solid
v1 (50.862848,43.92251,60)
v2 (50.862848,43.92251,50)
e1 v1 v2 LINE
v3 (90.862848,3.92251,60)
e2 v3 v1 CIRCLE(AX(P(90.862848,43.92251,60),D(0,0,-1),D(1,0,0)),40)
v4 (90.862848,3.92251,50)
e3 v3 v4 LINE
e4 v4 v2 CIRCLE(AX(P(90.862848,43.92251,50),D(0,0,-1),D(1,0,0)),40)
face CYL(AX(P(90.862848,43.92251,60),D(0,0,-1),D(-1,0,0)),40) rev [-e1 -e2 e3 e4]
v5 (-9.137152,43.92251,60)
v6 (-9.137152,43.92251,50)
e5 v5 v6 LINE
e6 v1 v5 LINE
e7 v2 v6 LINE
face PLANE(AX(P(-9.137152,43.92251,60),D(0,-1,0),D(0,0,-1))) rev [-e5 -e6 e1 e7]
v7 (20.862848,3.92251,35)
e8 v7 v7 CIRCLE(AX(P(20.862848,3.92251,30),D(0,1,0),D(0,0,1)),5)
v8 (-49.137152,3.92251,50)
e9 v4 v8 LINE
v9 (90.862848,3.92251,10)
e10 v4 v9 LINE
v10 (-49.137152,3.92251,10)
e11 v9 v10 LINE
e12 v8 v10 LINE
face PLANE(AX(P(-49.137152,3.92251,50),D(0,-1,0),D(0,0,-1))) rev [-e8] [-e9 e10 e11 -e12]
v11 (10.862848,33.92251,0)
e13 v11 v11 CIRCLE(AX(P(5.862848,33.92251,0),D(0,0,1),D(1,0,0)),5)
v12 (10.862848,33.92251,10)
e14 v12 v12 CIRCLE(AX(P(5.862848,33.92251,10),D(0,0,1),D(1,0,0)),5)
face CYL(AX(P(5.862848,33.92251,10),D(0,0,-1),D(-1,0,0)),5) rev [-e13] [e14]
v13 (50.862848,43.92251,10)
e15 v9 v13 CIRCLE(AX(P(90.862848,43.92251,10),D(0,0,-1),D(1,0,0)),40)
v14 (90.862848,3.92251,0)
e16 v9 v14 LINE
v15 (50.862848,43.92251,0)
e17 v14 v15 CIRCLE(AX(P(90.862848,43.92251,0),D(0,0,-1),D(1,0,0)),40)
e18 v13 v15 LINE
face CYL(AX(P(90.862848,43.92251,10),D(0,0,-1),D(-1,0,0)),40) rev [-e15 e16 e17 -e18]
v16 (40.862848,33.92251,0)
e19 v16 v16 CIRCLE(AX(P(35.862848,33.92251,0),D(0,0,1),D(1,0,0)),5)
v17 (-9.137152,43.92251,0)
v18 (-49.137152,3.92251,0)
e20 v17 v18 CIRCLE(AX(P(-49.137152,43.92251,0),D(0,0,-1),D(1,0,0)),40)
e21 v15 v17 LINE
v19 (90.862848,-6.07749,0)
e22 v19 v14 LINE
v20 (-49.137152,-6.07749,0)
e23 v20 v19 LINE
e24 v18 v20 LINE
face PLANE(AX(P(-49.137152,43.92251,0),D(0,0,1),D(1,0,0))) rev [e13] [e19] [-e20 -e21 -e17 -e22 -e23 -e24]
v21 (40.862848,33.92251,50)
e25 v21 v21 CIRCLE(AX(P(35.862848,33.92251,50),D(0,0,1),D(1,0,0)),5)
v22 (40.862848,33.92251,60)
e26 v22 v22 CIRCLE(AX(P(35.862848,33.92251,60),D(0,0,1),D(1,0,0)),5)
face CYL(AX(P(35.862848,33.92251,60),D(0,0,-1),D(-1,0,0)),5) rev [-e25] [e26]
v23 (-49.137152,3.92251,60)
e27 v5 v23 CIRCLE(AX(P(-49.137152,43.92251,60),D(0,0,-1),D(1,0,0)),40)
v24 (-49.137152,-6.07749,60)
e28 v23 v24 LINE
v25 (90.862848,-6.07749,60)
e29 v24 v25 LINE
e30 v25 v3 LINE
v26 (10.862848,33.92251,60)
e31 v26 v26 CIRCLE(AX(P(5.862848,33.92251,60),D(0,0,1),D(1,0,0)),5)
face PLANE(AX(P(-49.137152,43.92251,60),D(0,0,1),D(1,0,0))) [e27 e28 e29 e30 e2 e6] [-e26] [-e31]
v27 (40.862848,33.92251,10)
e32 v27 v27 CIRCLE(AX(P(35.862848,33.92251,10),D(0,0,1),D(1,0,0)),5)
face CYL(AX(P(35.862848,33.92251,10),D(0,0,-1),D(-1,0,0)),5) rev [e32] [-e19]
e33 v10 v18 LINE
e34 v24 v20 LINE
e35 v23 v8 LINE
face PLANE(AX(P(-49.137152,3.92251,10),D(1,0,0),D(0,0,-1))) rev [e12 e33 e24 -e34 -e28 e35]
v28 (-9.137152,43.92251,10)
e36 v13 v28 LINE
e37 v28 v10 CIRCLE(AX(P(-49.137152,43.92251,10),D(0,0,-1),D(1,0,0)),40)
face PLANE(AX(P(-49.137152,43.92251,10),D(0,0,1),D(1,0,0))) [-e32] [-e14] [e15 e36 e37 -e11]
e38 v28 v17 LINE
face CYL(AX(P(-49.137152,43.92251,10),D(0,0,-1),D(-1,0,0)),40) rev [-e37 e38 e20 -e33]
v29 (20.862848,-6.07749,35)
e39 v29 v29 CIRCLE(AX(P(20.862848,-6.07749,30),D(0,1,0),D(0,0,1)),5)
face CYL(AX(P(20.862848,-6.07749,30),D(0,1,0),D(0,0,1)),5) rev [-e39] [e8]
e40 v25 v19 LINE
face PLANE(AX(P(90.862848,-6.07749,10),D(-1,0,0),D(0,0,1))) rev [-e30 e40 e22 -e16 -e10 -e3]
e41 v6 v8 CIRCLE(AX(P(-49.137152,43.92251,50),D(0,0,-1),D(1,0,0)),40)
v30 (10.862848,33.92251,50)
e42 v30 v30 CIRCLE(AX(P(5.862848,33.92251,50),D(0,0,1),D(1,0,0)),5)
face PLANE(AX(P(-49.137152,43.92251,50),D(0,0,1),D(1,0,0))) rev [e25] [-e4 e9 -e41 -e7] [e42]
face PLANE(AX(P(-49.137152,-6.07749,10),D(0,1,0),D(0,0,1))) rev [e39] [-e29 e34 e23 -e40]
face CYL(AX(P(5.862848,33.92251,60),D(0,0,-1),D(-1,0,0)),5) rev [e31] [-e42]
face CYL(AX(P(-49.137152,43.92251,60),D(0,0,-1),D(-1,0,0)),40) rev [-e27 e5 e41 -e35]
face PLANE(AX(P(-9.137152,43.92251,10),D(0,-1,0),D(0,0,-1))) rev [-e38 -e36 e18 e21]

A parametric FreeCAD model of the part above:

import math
import FreeCAD as App
import Part
import Sketcher


def add_polygon(sketch, points):
    """Adds a closed chain of lines whose ends are joined by coincident constraints."""
    first, n = sketch.GeometryCount, len(points)
    for a, b in zip(points, points[1:] + points[:1]):
        sketch.addGeometry(Part.LineSegment(App.Vector(*a, 0), App.Vector(*b, 0)), False)
    for i in range(n):
        sketch.addConstraint(Sketcher.Constraint("Coincident", first + i, 2, first + (i + 1) % n, 1))

doc = App.newDocument("Part")
params = doc.addObject("Spreadsheet::Sheet", "Params")
for row, (alias, value) in enumerate([
    ("sketch1_diameter", "10 mm"),
    ("sketch1_radius", "40 mm"),
    ("sketch1_width", "140 mm"),
    ("sketch1_height", "10 mm"),
    ("pad1_length", "10 mm"),
    ("sketch2_width", "140 mm"),
    ("sketch2_height", "10 mm"),
    ("pad2_length", "40 mm"),
    ("sketch3_diameter", "10 mm"),
    ("sketch3_radius", "40 mm"),
    ("sketch3_width", "140 mm"),
    ("sketch3_height", "10 mm"),
    ("pad3_length", "10 mm"),
    ("sketch4_diameter", "10 mm"),
    ("pocket1_length", "10 mm"),
], start=1):
    params.set(f"A{row}", alias)
    params.set(f"B{row}", "=" + value)
    params.setAlias(f"B{row}", alias)

body = doc.addObject("PartDesign::Body", "Body")

sketch1 = body.newObject("Sketcher::SketchObject", "Sketch")
sketch1.AttachmentSupport = (doc.getObject("XY_Plane"), [""])
sketch1.MapMode = "FlatFace"
sketch1.addGeometry([
    Part.LineSegment(App.Vector(-49, 4, 0), App.Vector(-49, -6, 0)),
    Part.LineSegment(App.Vector(-49, -6, 0), App.Vector(91, -6, 0)),
    Part.LineSegment(App.Vector(91, -6, 0), App.Vector(91, 4, 0)),
    Part.ArcOfCircle(Part.Circle(App.Vector(91, 44, 0), App.Vector(0, 0, 1), 40), math.radians(180), math.radians(270)),
    Part.LineSegment(App.Vector(51, 44, 0), App.Vector(-9, 44, 0)),
    Part.ArcOfCircle(Part.Circle(App.Vector(-49, 44, 0), App.Vector(0, 0, 1), 40), math.radians(-90), math.radians(0)),
    Part.Circle(App.Vector(6, 34, 0), App.Vector(0, 0, 1), 5),
    Part.Circle(App.Vector(36, 34, 0), App.Vector(0, 0, 1), 5),
], False)
sketch1.addConstraint([
    Sketcher.Constraint("Coincident", 0, 2, 1, 1),
    Sketcher.Constraint("Coincident", 1, 2, 2, 1),
    Sketcher.Constraint("Coincident", 2, 2, 3, 2),
    Sketcher.Constraint("Coincident", 3, 1, 4, 1),
    Sketcher.Constraint("Coincident", 4, 2, 5, 2),
    Sketcher.Constraint("Coincident", 5, 1, 0, 1),
    Sketcher.Constraint("Vertical", 0),
    Sketcher.Constraint("Horizontal", 1),
    Sketcher.Constraint("Vertical", 2),
    Sketcher.Constraint("Horizontal", 4),
    Sketcher.Constraint("Equal", 3, 5),
    Sketcher.Constraint("Equal", 6, 7),
    Sketcher.Constraint("Horizontal", 3, 3, 5, 3),
    Sketcher.Constraint("Horizontal", 6, 3, 7, 3),
    Sketcher.Constraint("Horizontal", 5, 3, 3, 1),
    Sketcher.Constraint("Vertical", 5, 3, 0, 2),
    Sketcher.Constraint("Vertical", 3, 3, 1, 2),
    Sketcher.Constraint("Diameter", 6, 10.0),
    Sketcher.Constraint("Radius", 3, 40.0),
    Sketcher.Constraint("DistanceX", 1, 1, 1, 2, 140.0),
    Sketcher.Constraint("DistanceY", 0, 2, 0, 1, 10.0),
    Sketcher.Constraint("DistanceX", 5, 3, 6, 3, 55.0),
    Sketcher.Constraint("DistanceY", 6, 3, 5, 3, 10.0),
    Sketcher.Constraint("DistanceX", 6, 3, 7, 3, 30.0),
    Sketcher.Constraint("DistanceY", -1, 1, 3, 3, 43.92251),
    Sketcher.Constraint("DistanceX", -1, 1, 3, 3, 90.862848),
])
sketch1.setExpression("Constraints[17]", "Params.sketch1_diameter")
sketch1.setExpression("Constraints[18]", "Params.sketch1_radius")
sketch1.setExpression("Constraints[19]", "Params.sketch1_width")
sketch1.setExpression("Constraints[20]", "Params.sketch1_height")
pad1 = body.newObject("PartDesign::Pad", "Pad")
pad1.Profile = sketch1
pad1.setExpression("Length", "Params.pad1_length")

sketch2 = body.newObject("Sketcher::SketchObject", "Sketch001")
sketch2.AttachmentSupport = (doc.getObject("XY_Plane"), [""])
sketch2.MapMode = "FlatFace"
sketch2.AttachmentOffset = App.Placement(App.Vector(0, 0, 10), App.Rotation())
add_polygon(sketch2, [(-49, 4), (-49, -6), (91, -6), (91, 4)])
sketch2.addConstraint([
    Sketcher.Constraint("Vertical", 0),
    Sketcher.Constraint("Horizontal", 1),
    Sketcher.Constraint("Vertical", 2),
    Sketcher.Constraint("Horizontal", 3),
    Sketcher.Constraint("DistanceX", 1, 1, 1, 2, 140.0),
    Sketcher.Constraint("DistanceY", 0, 2, 0, 1, 10.0),
    Sketcher.Constraint("DistanceY", 0, 2, -1, 1, 6.07749),
    Sketcher.Constraint("DistanceX", 0, 2, -1, 1, 49.137152),
])
sketch2.setExpression("Constraints[8]", "Params.sketch2_width")
sketch2.setExpression("Constraints[9]", "Params.sketch2_height")
pad2 = body.newObject("PartDesign::Pad", "Pad001")
pad2.Profile = sketch2
pad2.setExpression("Length", "Params.pad2_length")

sketch3 = body.newObject("Sketcher::SketchObject", "Sketch002")
sketch3.AttachmentSupport = (doc.getObject("XY_Plane"), [""])
sketch3.MapMode = "FlatFace"
sketch3.AttachmentOffset = App.Placement(App.Vector(0, 0, 50), App.Rotation())
sketch3.addGeometry([
    Part.LineSegment(App.Vector(-49, 4, 0), App.Vector(-49, -6, 0)),
    Part.LineSegment(App.Vector(-49, -6, 0), App.Vector(91, -6, 0)),
    Part.LineSegment(App.Vector(91, -6, 0), App.Vector(91, 4, 0)),
    Part.ArcOfCircle(Part.Circle(App.Vector(91, 44, 0), App.Vector(0, 0, 1), 40), math.radians(180), math.radians(270)),
    Part.LineSegment(App.Vector(51, 44, 0), App.Vector(-9, 44, 0)),
    Part.ArcOfCircle(Part.Circle(App.Vector(-49, 44, 0), App.Vector(0, 0, 1), 40), math.radians(-90), math.radians(0)),
    Part.Circle(App.Vector(6, 34, 0), App.Vector(0, 0, 1), 5),
    Part.Circle(App.Vector(36, 34, 0), App.Vector(0, 0, 1), 5),
], False)
sketch3.addConstraint([
    Sketcher.Constraint("Coincident", 0, 2, 1, 1),
    Sketcher.Constraint("Coincident", 1, 2, 2, 1),
    Sketcher.Constraint("Coincident", 2, 2, 3, 2),
    Sketcher.Constraint("Coincident", 3, 1, 4, 1),
    Sketcher.Constraint("Coincident", 4, 2, 5, 2),
    Sketcher.Constraint("Coincident", 5, 1, 0, 1),
    Sketcher.Constraint("Vertical", 0),
    Sketcher.Constraint("Horizontal", 1),
    Sketcher.Constraint("Vertical", 2),
    Sketcher.Constraint("Horizontal", 4),
    Sketcher.Constraint("Equal", 3, 5),
    Sketcher.Constraint("Equal", 6, 7),
    Sketcher.Constraint("Horizontal", 3, 3, 5, 3),
    Sketcher.Constraint("Horizontal", 6, 3, 7, 3),
    Sketcher.Constraint("Horizontal", 5, 3, 3, 1),
    Sketcher.Constraint("Vertical", 5, 3, 0, 2),
    Sketcher.Constraint("Vertical", 3, 3, 1, 2),
    Sketcher.Constraint("Diameter", 6, 10.0),
    Sketcher.Constraint("Radius", 3, 40.0),
    Sketcher.Constraint("DistanceX", 1, 1, 1, 2, 140.0),
    Sketcher.Constraint("DistanceY", 0, 2, 0, 1, 10.0),
    Sketcher.Constraint("DistanceX", 5, 3, 6, 3, 55.0),
    Sketcher.Constraint("DistanceY", 6, 3, 5, 3, 10.0),
    Sketcher.Constraint("DistanceX", 6, 3, 7, 3, 30.0),
    Sketcher.Constraint("DistanceY", -1, 1, 3, 3, 43.92251),
    Sketcher.Constraint("DistanceX", -1, 1, 3, 3, 90.862848),
])
sketch3.setExpression("Constraints[17]", "Params.sketch3_diameter")
sketch3.setExpression("Constraints[18]", "Params.sketch3_radius")
sketch3.setExpression("Constraints[19]", "Params.sketch3_width")
sketch3.setExpression("Constraints[20]", "Params.sketch3_height")
pad3 = body.newObject("PartDesign::Pad", "Pad002")
pad3.Profile = sketch3
pad3.setExpression("Length", "Params.pad3_length")

sketch4 = body.newObject("Sketcher::SketchObject", "Sketch003")
sketch4.AttachmentSupport = (doc.getObject("XZ_Plane"), [""])
sketch4.MapMode = "FlatFace"
sketch4.AttachmentOffset = App.Placement(App.Vector(0, 0, -3.92251), App.Rotation())
sketch4.addGeometry(Part.Circle(App.Vector(21, 30, 0), App.Vector(0, 0, 1), 5), False)
sketch4.addConstraint([
    Sketcher.Constraint("Diameter", 0, 10.0),
    Sketcher.Constraint("DistanceY", -1, 1, 0, 3, 30.0),
    Sketcher.Constraint("DistanceX", -1, 1, 0, 3, 20.862848),
])
sketch4.setExpression("Constraints[0]", "Params.sketch4_diameter")
pocket1 = body.newObject("PartDesign::Pocket", "Pocket")
pocket1.Profile = sketch4
pocket1.setExpression("Length", "Params.pocket1_length")
pocket1.Reversed = True

doc.recompute()
